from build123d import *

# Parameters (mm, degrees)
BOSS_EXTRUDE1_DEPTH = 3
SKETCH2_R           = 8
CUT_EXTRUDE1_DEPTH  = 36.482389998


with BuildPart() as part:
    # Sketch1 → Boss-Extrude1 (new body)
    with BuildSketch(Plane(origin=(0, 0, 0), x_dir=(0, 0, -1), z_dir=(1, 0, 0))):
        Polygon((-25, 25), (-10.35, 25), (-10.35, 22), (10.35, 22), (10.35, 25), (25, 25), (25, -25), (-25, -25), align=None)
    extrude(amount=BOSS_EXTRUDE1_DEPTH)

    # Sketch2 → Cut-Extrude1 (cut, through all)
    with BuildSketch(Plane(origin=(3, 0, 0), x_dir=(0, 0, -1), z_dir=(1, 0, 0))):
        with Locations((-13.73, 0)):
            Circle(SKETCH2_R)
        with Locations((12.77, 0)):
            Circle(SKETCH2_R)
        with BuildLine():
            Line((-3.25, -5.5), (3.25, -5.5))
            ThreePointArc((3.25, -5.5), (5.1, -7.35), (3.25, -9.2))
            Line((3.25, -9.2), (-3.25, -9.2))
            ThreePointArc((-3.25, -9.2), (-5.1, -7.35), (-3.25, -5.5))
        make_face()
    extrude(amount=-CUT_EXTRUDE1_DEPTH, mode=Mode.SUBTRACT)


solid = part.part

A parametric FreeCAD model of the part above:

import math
import FreeCAD as App
import Part
import Sketcher


def add_polygon(sketch, points):
    """Adds a closed chain of lines whose ends are joined by coincident constraints."""
    first, n = sketch.GeometryCount, len(points)
    for a, b in zip(points, points[1:] + points[:1]):
        sketch.addGeometry(Part.LineSegment(App.Vector(*a, 0), App.Vector(*b, 0)), False)
    for i in range(n):
        sketch.addConstraint(Sketcher.Constraint("Coincident", first + i, 2, first + (i + 1) % n, 1))

doc = App.newDocument("Part")
body = doc.addObject("PartDesign::Body", "Body")

# Sketch on YZ plane
sketch1 = body.newObject("Sketcher::SketchObject", "Sketch")
sketch1.AttachmentSupport = (doc.getObject("YZ_Plane"), [""])
sketch1.MapMode = "FlatFace"
add_polygon(sketch1, [(25, 10.35), (25, 25), (-25, 25), (-25, -25), (25, -25), (25, -10.35), (22, -10.35), (22, 10.35)])  # lines 0-7
sketch1.addConstraint([
    Sketcher.Constraint("Vertical", 0),
    Sketcher.Constraint("Horizontal", 1),
    Sketcher.Constraint("Vertical", 2),
    Sketcher.Constraint("Horizontal", 3),
    Sketcher.Constraint("Vertical", 4),
    Sketcher.Constraint("Horizontal", 5),
    Sketcher.Constraint("Vertical", 6),
    Sketcher.Constraint("Horizontal", 7),
    Sketcher.Constraint("Symmetric", 0, 2, 2, 2, -1, 1),
    Sketcher.Constraint("Symmetric", 4, 2, 7, 2, -1),
    Sketcher.Constraint("Equal", 3, 2),
    Sketcher.Constraint("DistanceX", 1, 2, 1, 1, 50.0),
    Sketcher.Constraint("DistanceX", 5, 2, 5, 1, 3.0),
    Sketcher.Constraint("DistanceY", 6, 1, 6, 2, 20.7),
])
pad1 = body.newObject("PartDesign::Pad", "Pad")
pad1.Profile = sketch1
pad1.Length = 3

# Sketch on YZ plane
sketch2 = body.newObject("Sketcher::SketchObject", "Sketch001")
sketch2.AttachmentSupport = (doc.getObject("YZ_Plane"), [""])
sketch2.MapMode = "FlatFace"
sketch2.AttachmentOffset = App.Placement(App.Vector(0, 0, 3), App.Rotation())
sketch2.addGeometry([
    Part.Circle(App.Vector(0, 13.73, 0), App.Vector(0, 0, 1), 8),  # 0
    Part.Circle(App.Vector(0, -12.77, 0), App.Vector(0, 0, 1), 8),  # 1
    Part.LineSegment(App.Vector(-5.5, -3.25, 0), App.Vector(-5.5, 3.25, 0)),  # 2
    Part.ArcOfCircle(Part.Circle(App.Vector(-7.35, 3.25, 0), App.Vector(0, 0, 1), 1.85), math.radians(0), math.radians(180)),  # 3
    Part.LineSegment(App.Vector(-9.2, 3.25, 0), App.Vector(-9.2, -3.25, 0)),  # 4
    Part.ArcOfCircle(Part.Circle(App.Vector(-7.35, -3.25, 0), App.Vector(0, 0, 1), 1.85), math.radians(180), math.radians(360)),  # 5
], False)
sketch2.addConstraint([
    Sketcher.Constraint("Tangent", 2, 2, 3, 1),
    Sketcher.Constraint("Tangent", 3, 2, 4, 1),
    Sketcher.Constraint("Tangent", 4, 2, 5, 1),
    Sketcher.Constraint("Tangent", 5, 2, 2, 1),
    Sketcher.Constraint("Vertical", 2),
    Sketcher.Constraint("Vertical", 4),
    Sketcher.Constraint("Equal", 0, 1),
    Sketcher.Constraint("PointOnObject", 0, 3, -2),
    Sketcher.Constraint("PointOnObject", 1, 3, -2),
    Sketcher.Constraint("Diameter", 0, 16.0),
    Sketcher.Constraint("Radius", 3, 1.85),
    Sketcher.Constraint("DistanceY", 2, 1, 2, 2, 6.5),
    Sketcher.Constraint("DistanceX", 2, 2, -1, 1, 5.5),
    Sketcher.Constraint("DistanceY", 1, 3, 0, 3, 26.5),
    Sketcher.Constraint("DistanceY", -1, 1, 0, 3, 13.73),
    Sketcher.Constraint("DistanceY", -1, 1, 3, 3, 3.25),
])
pocket1 = body.newObject("PartDesign::Pocket", "Pocket")
pocket1.Profile = sketch2
pocket1.Type = "ThroughAll"

doc.recompute()
